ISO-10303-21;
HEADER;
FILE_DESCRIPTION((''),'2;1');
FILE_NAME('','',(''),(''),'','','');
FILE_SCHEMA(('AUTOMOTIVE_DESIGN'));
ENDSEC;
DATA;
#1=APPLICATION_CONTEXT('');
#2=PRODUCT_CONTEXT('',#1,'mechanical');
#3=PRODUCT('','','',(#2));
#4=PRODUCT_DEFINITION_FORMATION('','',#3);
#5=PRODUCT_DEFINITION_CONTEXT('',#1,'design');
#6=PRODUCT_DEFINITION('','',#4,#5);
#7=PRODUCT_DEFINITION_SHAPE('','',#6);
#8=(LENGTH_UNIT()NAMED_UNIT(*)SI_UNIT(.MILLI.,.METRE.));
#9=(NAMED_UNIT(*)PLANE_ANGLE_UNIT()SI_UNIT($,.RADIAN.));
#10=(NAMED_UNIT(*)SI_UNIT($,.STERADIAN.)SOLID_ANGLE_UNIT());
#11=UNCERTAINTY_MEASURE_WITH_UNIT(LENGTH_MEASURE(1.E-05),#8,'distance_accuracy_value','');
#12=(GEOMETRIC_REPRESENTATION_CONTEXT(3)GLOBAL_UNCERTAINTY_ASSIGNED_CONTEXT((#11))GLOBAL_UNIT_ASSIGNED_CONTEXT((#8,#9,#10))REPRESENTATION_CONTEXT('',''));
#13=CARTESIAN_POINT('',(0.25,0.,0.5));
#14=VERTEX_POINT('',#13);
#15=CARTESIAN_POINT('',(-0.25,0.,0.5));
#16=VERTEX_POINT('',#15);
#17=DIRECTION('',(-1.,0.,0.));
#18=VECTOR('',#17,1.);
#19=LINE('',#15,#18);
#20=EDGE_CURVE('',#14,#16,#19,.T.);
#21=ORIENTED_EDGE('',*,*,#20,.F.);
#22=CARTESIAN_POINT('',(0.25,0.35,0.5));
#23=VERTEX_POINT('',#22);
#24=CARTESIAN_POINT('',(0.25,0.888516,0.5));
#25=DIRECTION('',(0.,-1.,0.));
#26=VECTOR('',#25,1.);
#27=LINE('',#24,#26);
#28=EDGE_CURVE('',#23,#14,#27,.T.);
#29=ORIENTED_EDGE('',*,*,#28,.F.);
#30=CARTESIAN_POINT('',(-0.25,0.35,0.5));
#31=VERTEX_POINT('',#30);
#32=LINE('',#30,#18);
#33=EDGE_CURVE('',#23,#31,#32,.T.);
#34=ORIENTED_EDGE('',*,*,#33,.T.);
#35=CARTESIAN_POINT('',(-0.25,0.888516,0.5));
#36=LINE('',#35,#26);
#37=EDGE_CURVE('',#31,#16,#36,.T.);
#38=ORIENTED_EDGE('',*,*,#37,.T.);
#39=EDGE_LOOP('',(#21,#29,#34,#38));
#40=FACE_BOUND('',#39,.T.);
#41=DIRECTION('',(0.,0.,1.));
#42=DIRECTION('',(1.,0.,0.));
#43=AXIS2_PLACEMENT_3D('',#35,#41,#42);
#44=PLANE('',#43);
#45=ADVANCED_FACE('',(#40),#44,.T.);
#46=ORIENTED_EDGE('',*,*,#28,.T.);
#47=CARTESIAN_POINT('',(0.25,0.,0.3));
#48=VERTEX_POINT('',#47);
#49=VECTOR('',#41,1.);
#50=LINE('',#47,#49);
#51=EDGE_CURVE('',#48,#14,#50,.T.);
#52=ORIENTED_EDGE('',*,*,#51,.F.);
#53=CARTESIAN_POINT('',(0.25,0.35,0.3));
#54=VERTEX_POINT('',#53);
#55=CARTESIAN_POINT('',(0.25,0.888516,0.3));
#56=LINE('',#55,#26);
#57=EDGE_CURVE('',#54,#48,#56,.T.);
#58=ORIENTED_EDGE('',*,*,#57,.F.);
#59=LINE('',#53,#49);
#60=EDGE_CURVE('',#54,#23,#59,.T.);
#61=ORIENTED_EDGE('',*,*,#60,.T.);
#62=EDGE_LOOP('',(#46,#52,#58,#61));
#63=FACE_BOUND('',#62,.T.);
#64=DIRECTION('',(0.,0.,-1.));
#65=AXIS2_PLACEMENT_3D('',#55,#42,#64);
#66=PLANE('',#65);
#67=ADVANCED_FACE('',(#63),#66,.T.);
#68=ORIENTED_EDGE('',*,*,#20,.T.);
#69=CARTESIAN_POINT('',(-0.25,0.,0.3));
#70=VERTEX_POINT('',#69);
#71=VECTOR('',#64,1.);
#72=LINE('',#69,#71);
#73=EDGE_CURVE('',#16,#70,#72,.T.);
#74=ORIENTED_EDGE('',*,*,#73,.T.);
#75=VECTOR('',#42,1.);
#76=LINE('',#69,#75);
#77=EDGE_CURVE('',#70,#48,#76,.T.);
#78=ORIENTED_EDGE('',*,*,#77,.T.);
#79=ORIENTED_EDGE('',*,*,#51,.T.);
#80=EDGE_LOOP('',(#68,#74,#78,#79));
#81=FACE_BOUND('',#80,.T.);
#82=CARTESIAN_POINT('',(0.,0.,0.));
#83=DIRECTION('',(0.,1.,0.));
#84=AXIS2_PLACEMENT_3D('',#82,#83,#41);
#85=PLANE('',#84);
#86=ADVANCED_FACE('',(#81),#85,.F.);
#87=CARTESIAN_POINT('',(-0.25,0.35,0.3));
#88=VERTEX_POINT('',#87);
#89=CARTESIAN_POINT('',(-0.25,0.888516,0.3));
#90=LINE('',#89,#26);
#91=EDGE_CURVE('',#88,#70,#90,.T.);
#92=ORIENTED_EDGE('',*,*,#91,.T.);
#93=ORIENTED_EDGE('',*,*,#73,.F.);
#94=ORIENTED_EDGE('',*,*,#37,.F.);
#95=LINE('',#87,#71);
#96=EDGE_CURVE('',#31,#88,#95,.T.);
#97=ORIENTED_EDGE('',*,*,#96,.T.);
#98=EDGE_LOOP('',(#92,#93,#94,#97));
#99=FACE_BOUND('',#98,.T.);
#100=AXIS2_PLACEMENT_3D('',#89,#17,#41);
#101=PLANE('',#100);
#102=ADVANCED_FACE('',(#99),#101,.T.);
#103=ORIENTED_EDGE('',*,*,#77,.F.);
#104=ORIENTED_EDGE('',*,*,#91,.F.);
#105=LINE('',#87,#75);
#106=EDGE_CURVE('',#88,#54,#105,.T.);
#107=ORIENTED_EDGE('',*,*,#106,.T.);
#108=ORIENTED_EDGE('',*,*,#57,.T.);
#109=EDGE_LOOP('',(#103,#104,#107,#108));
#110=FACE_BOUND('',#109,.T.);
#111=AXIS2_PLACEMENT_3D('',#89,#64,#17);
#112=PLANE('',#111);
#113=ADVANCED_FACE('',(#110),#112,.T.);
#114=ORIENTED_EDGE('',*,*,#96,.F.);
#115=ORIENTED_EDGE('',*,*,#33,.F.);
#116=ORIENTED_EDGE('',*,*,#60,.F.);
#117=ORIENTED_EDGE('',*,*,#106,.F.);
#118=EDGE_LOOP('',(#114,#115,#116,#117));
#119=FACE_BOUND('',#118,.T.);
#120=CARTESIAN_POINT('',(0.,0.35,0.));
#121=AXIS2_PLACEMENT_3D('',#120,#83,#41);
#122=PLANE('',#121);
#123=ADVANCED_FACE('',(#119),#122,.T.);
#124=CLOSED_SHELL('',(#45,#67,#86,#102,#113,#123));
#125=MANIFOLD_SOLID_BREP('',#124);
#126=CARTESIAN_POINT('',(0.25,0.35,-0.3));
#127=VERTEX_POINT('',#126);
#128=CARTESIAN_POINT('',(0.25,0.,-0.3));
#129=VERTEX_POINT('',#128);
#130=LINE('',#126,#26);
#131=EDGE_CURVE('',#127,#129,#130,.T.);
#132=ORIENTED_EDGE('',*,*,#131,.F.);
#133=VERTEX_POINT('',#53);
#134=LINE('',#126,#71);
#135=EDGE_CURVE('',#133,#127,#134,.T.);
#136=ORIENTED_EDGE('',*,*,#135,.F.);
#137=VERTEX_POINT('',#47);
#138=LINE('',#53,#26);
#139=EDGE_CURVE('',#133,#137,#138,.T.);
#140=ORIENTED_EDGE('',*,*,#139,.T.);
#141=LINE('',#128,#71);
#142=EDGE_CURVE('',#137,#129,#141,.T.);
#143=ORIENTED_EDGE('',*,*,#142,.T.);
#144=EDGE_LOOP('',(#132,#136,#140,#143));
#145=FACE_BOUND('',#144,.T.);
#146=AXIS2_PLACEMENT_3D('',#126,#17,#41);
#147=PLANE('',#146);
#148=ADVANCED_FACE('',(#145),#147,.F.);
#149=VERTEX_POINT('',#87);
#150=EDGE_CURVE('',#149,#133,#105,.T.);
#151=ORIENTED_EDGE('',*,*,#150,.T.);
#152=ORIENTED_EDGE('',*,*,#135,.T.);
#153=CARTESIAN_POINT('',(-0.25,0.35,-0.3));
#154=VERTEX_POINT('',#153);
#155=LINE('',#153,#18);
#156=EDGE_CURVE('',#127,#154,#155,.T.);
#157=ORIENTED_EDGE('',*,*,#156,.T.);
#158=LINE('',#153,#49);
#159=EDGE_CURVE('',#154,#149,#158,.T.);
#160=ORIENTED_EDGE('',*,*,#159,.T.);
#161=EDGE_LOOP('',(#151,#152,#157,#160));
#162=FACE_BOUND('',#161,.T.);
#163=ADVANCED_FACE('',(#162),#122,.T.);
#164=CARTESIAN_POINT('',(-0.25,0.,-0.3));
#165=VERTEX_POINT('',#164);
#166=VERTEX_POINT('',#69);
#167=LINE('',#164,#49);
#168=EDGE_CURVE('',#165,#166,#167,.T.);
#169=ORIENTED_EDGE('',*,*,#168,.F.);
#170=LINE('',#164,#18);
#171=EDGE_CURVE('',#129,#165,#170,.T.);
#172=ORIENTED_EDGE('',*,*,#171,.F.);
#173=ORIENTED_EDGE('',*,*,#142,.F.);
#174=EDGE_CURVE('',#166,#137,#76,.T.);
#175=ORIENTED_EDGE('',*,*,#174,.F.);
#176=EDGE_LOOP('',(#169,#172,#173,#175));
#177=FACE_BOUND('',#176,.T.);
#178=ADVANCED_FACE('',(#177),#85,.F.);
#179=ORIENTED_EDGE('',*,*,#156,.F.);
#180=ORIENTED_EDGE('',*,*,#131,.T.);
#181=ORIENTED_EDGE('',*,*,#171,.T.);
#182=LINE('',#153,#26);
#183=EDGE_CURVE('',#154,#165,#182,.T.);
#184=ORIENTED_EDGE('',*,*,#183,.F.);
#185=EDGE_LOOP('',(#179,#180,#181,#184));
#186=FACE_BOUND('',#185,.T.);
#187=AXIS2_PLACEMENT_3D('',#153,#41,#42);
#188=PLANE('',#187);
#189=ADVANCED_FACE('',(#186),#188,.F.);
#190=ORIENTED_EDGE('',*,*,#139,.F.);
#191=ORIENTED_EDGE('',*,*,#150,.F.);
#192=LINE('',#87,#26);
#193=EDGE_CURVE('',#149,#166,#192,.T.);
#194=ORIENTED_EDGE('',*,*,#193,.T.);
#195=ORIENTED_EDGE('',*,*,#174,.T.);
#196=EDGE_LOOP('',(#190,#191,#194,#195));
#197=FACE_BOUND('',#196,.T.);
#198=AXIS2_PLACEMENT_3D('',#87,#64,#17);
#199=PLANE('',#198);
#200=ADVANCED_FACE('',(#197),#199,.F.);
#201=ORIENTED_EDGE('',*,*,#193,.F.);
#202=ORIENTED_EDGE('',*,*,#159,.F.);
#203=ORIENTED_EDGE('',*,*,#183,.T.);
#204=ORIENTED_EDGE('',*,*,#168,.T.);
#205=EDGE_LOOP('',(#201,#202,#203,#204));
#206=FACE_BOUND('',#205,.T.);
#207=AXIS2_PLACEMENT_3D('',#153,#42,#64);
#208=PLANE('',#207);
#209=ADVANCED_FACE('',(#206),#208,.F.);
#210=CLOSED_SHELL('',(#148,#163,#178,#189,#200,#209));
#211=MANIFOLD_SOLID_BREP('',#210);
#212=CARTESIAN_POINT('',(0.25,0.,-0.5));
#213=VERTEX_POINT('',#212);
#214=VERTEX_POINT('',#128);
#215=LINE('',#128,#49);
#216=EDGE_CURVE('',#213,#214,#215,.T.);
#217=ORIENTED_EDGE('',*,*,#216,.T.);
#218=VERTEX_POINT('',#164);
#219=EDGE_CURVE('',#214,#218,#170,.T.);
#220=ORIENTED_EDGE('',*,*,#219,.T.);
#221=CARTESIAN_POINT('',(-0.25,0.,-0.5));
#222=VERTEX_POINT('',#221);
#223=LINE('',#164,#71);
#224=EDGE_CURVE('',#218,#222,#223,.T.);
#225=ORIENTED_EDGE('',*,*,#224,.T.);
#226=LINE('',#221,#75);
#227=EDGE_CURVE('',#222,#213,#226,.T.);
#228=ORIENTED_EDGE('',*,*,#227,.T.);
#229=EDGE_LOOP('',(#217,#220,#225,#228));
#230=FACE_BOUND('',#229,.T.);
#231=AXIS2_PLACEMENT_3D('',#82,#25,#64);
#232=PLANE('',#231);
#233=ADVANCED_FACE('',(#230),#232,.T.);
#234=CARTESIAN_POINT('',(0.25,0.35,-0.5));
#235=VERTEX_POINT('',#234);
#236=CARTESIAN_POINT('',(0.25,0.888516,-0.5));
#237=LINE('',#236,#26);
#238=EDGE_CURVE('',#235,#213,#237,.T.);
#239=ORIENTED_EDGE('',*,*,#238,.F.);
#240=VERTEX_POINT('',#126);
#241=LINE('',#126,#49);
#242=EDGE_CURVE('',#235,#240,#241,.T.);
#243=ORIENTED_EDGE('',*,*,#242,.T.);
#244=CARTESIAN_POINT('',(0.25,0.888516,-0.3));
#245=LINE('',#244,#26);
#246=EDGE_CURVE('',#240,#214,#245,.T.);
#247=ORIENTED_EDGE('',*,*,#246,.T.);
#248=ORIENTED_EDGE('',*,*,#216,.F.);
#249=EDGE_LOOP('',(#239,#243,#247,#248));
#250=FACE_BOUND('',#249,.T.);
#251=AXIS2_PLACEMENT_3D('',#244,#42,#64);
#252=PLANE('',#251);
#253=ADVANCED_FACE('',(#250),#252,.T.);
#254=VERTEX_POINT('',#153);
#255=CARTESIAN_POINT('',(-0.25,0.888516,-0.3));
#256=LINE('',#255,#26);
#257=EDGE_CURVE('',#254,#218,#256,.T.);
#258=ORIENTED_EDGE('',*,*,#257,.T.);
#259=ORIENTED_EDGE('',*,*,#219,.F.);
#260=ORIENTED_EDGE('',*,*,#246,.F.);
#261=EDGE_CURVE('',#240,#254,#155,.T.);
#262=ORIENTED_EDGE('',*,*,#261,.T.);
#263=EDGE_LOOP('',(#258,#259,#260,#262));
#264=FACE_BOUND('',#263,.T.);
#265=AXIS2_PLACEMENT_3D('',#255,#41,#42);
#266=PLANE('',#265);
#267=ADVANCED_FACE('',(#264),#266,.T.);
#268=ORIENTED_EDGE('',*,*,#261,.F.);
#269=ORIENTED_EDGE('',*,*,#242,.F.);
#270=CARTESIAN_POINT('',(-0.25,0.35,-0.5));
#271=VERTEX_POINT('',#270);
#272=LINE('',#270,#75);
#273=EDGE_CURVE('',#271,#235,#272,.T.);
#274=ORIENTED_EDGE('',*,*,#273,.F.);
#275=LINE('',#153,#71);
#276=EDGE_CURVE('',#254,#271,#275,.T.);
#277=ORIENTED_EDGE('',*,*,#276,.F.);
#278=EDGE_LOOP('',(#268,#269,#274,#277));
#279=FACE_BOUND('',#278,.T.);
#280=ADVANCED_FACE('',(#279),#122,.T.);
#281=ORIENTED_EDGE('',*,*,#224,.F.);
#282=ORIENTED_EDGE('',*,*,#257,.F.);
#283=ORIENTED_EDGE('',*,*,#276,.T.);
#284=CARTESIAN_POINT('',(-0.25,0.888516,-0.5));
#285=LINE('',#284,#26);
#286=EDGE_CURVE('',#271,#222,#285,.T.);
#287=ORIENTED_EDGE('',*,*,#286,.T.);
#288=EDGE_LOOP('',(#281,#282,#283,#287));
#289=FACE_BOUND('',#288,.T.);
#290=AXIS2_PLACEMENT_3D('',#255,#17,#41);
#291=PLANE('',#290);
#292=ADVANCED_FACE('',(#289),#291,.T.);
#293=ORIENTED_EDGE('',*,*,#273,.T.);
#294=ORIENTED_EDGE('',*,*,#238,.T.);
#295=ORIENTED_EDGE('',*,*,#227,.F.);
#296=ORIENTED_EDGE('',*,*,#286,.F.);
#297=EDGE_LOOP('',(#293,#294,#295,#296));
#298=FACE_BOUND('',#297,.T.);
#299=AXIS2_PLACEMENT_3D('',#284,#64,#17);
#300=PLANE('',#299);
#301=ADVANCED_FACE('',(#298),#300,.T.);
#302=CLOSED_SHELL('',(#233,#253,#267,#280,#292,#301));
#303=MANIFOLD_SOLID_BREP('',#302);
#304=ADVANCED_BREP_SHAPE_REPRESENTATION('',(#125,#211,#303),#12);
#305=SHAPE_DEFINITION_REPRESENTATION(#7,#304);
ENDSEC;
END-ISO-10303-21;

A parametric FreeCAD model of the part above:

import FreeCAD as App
import Part
import Sketcher


def add_polygon(sketch, points):
    """Adds a closed chain of lines whose ends are joined by coincident constraints."""
    first, n = sketch.GeometryCount, len(points)
    for a, b in zip(points, points[1:] + points[:1]):
        sketch.addGeometry(Part.LineSegment(App.Vector(*a, 0), App.Vector(*b, 0)), False)
    for i in range(n):
        sketch.addConstraint(Sketcher.Constraint("Coincident", first + i, 2, first + (i + 1) % n, 1))

doc = App.newDocument("Part")
params = doc.addObject("Spreadsheet::Sheet", "Params")
for row, (alias, value) in enumerate([
    ("sketch1_width", "0.5 mm"),
    ("sketch1_height", "0.6 mm"),
    ("pad1_length", "0.35 mm"),
    ("sketch2_width", "0.5 mm"),
    ("sketch2_height", "0.2 mm"),
    ("pad2_length", "0.35 mm"),
    ("sketch3_width", "0.5 mm"),
    ("sketch3_height", "0.2 mm"),
    ("pad3_length", "0.35 mm"),
], start=1):
    params.set(f"A{row}", alias)
    params.set(f"B{row}", "=" + value)
    params.setAlias(f"B{row}", alias)

body = doc.addObject("PartDesign::Body", "Body")

# Sketch on XZ plane
sketch1 = body.newObject("Sketcher::SketchObject", "Sketch")
sketch1.AttachmentSupport = (doc.getObject("XZ_Plane"), [""])
sketch1.MapMode = "FlatFace"
add_polygon(sketch1, [(-0.25, -0.3), (-0.25, 0.3), (0.25, 0.3), (0.25, -0.3)])  # lines 0-3
sketch1.addConstraint([
    Sketcher.Constraint("Vertical", 0),
    Sketcher.Constraint("Horizontal", 1),
    Sketcher.Constraint("Vertical", 2),
    Sketcher.Constraint("Horizontal", 3),
    Sketcher.Constraint("Symmetric", 0, 2, 2, 2, -1, 1),
    Sketcher.Constraint("DistanceX", 1, 1, 1, 2, 0.5),
    Sketcher.Constraint("DistanceY", 0, 1, 0, 2, 0.6),
])
sketch1.setExpression("Constraints[9]", "Params.sketch1_width")
sketch1.setExpression("Constraints[10]", "Params.sketch1_height")
pad1 = body.newObject("PartDesign::Pad", "Pad")
pad1.Profile = sketch1
pad1.setExpression("Length", "Params.pad1_length")
pad1.Reversed = True
body2 = doc.addObject("PartDesign::Body", "Body001")

# Sketch on XZ plane
sketch2 = body2.newObject("Sketcher::SketchObject", "Sketch001")
sketch2.AttachmentSupport = (doc.getObject("XZ_Plane001"), [""])
sketch2.MapMode = "FlatFace"
add_polygon(sketch2, [(0.25, 0.3), (0.25, 0.5), (-0.25, 0.5), (-0.25, 0.3)])  # lines 0-3
sketch2.addConstraint([
    Sketcher.Constraint("Vertical", 0),
    Sketcher.Constraint("Horizontal", 1),
    Sketcher.Constraint("Vertical", 2),
    Sketcher.Constraint("Horizontal", 3),
    Sketcher.Constraint("DistanceX", 1, 2, 1, 1, 0.5),
    Sketcher.Constraint("DistanceY", 0, 1, 0, 2, 0.2),
    Sketcher.Constraint("DistanceY", -1, 1, 0, 2, 0.5),
    Sketcher.Constraint("DistanceX", -1, 1, 0, 2, 0.25),
])
sketch2.setExpression("Constraints[8]", "Params.sketch2_width")
sketch2.setExpression("Constraints[9]", "Params.sketch2_height")
pad2 = body2.newObject("PartDesign::Pad", "Pad001")
pad2.Profile = sketch2
pad2.setExpression("Length", "Params.pad2_length")
pad2.Reversed = True
body3 = doc.addObject("PartDesign::Body", "Body002")

# Sketch on XZ plane
sketch3 = body3.newObject("Sketcher::SketchObject", "Sketch002")
sketch3.AttachmentSupport = (doc.getObject("XZ_Plane002"), [""])
sketch3.MapMode = "FlatFace"
add_polygon(sketch3, [(-0.25, -0.3), (-0.25, -0.5), (0.25, -0.5), (0.25, -0.3)])  # lines 0-3
sketch3.addConstraint([
    Sketcher.Constraint("Vertical", 0),
    Sketcher.Constraint("Horizontal", 1),
    Sketcher.Constraint("Vertical", 2),
    Sketcher.Constraint("Horizontal", 3),
    Sketcher.Constraint("DistanceX", 1, 1, 1, 2, 0.5),
    Sketcher.Constraint("DistanceY", 0, 2, 0, 1, 0.2),
    Sketcher.Constraint("DistanceY", 0, 2, -1, 1, 0.5),
    Sketcher.Constraint("DistanceX", 0, 2, -1, 1, 0.25),
])
sketch3.setExpression("Constraints[8]", "Params.sketch3_width")
sketch3.setExpression("Constraints[9]", "Params.sketch3_height")
pad3 = body3.newObject("PartDesign::Pad", "Pad002")
pad3.Profile = sketch3
pad3.setExpression("Length", "Params.pad3_length")
pad3.Reversed = True

doc.recompute()
